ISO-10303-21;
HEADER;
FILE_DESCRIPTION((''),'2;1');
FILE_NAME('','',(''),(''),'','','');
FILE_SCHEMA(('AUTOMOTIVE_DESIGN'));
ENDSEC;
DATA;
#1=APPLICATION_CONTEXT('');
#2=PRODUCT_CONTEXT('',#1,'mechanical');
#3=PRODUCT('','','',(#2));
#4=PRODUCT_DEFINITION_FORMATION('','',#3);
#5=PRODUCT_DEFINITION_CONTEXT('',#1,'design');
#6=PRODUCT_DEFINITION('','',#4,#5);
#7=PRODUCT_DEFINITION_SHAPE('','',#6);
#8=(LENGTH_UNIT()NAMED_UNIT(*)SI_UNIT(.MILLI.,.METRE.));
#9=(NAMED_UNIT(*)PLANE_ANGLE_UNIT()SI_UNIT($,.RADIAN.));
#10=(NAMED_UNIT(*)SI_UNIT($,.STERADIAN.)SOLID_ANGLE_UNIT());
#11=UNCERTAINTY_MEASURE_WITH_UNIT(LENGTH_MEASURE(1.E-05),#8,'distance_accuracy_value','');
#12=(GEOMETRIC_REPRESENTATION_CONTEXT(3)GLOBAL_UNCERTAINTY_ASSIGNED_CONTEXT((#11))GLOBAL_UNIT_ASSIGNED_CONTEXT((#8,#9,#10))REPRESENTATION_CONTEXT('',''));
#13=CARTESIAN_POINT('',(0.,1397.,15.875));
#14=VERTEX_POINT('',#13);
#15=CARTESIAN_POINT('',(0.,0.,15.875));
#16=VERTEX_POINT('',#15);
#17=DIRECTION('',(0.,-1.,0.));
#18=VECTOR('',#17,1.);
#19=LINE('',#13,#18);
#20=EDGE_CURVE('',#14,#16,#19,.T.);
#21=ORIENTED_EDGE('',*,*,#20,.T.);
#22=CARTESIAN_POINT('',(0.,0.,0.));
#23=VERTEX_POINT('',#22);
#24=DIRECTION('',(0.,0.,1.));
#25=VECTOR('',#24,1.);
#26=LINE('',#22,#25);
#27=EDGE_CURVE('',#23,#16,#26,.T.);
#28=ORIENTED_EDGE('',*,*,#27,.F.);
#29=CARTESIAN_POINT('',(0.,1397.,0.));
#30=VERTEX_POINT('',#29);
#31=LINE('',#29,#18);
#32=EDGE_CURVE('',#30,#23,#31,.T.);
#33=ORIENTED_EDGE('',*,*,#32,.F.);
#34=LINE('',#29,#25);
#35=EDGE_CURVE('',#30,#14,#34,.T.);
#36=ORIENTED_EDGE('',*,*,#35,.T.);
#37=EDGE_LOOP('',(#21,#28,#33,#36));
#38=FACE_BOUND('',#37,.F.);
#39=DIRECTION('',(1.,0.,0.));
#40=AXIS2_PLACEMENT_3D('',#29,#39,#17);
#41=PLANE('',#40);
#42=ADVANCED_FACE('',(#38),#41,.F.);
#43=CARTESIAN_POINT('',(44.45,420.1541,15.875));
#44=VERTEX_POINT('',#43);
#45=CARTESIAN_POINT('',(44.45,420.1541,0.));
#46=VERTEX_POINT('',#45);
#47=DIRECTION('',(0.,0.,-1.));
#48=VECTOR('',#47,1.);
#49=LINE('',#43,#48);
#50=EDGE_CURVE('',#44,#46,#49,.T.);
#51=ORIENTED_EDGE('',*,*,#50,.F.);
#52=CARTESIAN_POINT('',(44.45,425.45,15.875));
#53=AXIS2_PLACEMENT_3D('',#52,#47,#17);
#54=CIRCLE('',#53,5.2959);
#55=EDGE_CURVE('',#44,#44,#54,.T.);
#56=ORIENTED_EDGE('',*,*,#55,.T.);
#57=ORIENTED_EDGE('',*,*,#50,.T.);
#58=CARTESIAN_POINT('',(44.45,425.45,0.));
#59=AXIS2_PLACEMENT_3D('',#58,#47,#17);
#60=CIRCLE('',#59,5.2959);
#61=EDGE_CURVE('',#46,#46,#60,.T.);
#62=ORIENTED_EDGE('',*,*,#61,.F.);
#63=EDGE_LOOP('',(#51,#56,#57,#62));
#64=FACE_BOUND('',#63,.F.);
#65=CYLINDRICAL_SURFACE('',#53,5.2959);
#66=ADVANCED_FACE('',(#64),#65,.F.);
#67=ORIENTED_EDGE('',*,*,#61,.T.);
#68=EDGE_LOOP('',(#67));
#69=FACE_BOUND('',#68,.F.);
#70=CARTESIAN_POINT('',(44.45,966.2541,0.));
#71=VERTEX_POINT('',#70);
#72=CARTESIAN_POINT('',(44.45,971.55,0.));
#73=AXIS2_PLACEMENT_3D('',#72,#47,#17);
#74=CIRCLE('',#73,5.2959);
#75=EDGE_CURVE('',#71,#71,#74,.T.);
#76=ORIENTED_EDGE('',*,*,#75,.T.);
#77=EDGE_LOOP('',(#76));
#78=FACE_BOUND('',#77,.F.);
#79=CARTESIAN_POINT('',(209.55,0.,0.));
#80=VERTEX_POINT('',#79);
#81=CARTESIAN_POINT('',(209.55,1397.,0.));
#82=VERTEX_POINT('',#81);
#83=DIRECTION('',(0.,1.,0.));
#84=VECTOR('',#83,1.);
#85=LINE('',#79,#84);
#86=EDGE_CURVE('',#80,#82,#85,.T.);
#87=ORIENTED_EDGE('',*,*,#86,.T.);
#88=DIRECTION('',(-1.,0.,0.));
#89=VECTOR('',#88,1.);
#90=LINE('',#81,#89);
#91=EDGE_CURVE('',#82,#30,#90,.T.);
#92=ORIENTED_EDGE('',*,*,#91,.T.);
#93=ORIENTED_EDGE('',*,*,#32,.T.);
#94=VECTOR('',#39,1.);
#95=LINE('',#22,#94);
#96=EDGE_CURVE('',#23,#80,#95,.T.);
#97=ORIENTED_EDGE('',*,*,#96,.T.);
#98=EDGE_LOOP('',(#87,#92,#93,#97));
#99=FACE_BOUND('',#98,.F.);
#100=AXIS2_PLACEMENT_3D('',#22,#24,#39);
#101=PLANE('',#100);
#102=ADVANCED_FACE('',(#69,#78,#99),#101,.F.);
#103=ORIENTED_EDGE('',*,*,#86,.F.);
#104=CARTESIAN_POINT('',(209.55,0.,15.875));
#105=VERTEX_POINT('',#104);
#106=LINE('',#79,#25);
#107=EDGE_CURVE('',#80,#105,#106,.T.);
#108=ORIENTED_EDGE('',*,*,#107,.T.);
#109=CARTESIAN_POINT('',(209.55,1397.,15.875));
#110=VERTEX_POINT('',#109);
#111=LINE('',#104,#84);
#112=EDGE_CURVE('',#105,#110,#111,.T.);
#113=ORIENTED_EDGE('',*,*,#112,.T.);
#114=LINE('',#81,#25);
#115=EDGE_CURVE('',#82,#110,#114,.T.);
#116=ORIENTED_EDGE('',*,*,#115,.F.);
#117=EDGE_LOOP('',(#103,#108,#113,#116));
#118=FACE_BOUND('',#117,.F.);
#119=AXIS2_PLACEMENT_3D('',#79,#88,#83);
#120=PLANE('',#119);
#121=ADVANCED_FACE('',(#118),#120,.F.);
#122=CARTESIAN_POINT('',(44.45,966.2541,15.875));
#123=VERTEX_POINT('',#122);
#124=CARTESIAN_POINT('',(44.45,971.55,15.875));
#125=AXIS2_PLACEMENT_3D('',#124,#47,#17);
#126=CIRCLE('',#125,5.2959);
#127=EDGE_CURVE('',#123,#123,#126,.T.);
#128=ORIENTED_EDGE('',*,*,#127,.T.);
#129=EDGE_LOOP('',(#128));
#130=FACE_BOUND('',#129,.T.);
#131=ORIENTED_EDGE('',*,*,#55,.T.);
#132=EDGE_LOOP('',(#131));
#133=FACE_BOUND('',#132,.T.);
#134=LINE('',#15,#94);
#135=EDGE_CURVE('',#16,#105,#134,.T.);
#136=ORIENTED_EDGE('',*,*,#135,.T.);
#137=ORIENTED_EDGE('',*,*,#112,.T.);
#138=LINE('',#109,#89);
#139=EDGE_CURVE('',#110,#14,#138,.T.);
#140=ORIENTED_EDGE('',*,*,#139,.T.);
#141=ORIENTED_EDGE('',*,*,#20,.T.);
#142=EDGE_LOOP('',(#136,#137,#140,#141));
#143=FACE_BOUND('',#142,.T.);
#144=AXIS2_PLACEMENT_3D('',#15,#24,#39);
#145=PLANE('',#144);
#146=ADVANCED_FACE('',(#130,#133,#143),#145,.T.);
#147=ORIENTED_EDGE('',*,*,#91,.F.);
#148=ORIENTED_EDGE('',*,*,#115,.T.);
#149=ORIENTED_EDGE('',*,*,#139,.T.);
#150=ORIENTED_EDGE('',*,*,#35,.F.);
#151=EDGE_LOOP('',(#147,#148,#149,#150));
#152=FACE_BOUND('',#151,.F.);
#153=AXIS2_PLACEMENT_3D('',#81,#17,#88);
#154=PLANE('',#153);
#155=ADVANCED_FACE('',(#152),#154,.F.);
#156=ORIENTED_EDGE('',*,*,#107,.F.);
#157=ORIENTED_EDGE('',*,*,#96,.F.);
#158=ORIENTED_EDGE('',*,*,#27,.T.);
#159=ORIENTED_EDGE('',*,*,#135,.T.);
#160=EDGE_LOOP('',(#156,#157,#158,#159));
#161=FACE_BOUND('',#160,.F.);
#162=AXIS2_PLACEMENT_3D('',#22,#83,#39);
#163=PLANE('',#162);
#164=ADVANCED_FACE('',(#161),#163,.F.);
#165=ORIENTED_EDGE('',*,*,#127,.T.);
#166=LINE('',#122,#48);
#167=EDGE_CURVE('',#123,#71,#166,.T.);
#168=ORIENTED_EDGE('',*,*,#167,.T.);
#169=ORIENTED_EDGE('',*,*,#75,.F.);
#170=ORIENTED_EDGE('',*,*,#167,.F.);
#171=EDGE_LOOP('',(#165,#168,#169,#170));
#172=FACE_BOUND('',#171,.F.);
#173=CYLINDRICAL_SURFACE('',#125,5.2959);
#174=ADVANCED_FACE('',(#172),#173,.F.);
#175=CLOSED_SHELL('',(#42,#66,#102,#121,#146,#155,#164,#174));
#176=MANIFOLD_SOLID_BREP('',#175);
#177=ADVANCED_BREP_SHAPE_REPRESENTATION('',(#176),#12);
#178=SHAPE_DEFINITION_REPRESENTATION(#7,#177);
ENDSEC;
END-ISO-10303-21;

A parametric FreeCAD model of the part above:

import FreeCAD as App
import Part
import Sketcher
Q = App.Units.Quantity

doc = App.newDocument("Part")
body = doc.addObject("PartDesign::Body", "Body")

# Sketch on XY plane
sketch1 = body.newObject("Sketcher::SketchObject", "Sketch")
sketch1.AttachmentSupport = (doc.getObject("XY_Plane"), [""])
sketch1.MapMode = "FlatFace"
sketch1.addGeometry(Part.LineSegment(App.Vector(0, 1397, 0), App.Vector(0, 0, 0)), False)
sketch1.addGeometry(Part.LineSegment(App.Vector(0, 0, 0), App.Vector(210, 0, 0)), False)
sketch1.addGeometry(Part.LineSegment(App.Vector(210, 0, 0), App.Vector(210, 1397, 0)), False)
sketch1.addGeometry(Part.LineSegment(App.Vector(210, 1397, 0), App.Vector(0, 1397, 0)), False)
sketch1.addConstraint(Sketcher.Constraint("Coincident", 0, 2, 1, 1))
sketch1.addConstraint(Sketcher.Constraint("Coincident", 1, 2, 2, 1))
sketch1.addConstraint(Sketcher.Constraint("Coincident", 2, 2, 3, 1))
sketch1.addConstraint(Sketcher.Constraint("Coincident", 3, 2, 0, 1))
sketch1.addConstraint(Sketcher.Constraint("Vertical", 0))
sketch1.addConstraint(Sketcher.Constraint("Horizontal", 1))
sketch1.addConstraint(Sketcher.Constraint("Vertical", 2))
sketch1.addConstraint(Sketcher.Constraint("Horizontal", 3))
sketch1.addConstraint(Sketcher.Constraint("Coincident", 0, 2, -1, 1))
sketch1.addConstraint(Sketcher.Constraint("DistanceY", 0, 2, 0, 1, Q("55 in")))
sketch1.addConstraint(Sketcher.Constraint("DistanceX", 1, 1, 1, 2, Q("8.25 in")))
pad1 = body.newObject("PartDesign::Pad", "Pad")
pad1.Profile = sketch1
pad1.Length = Q("0.625 in")

# Sketch on XY plane
sketch2 = body.newObject("Sketcher::SketchObject", "Sketch001")
sketch2.AttachmentSupport = (doc.getObject("XY_Plane"), [""])
sketch2.MapMode = "FlatFace"
sketch2.AttachmentOffset = App.Placement(App.Vector(0, 0, 0.625 * 25.4), App.Rotation())
sketch2.addGeometry(Part.Circle(App.Vector(44, 972, 0), App.Vector(0, 0, 1), 5), False)
sketch2.addGeometry(Part.Circle(App.Vector(44, 425, 0), App.Vector(0, 0, 1), 5), False)
sketch2.addConstraint(Sketcher.Constraint("Equal", 0, 1))
sketch2.addConstraint(Sketcher.Constraint("Vertical", 0, 3, 1, 3))
sketch2.addConstraint(Sketcher.Constraint("Diameter", 0, Q("0.417 in")))
sketch2.addConstraint(Sketcher.Constraint("DistanceY", 1, 3, 0, 3, Q("21.5 in")))
sketch2.addConstraint(Sketcher.Constraint("DistanceX", -1, 1, 0, 3, Q("1.75 in")))
sketch2.addConstraint(Sketcher.Constraint("DistanceY", -1, 1, 0, 3, Q("38.25 in")))
doc.recompute()
hole = body.newObject("PartDesign::Hole", "Hole")
hole.Profile = sketch2
hole.ThreadType = "None"
hole.Diameter = Q("0.417 in")
hole.DepthType = "ThroughAll"

doc.recompute()
